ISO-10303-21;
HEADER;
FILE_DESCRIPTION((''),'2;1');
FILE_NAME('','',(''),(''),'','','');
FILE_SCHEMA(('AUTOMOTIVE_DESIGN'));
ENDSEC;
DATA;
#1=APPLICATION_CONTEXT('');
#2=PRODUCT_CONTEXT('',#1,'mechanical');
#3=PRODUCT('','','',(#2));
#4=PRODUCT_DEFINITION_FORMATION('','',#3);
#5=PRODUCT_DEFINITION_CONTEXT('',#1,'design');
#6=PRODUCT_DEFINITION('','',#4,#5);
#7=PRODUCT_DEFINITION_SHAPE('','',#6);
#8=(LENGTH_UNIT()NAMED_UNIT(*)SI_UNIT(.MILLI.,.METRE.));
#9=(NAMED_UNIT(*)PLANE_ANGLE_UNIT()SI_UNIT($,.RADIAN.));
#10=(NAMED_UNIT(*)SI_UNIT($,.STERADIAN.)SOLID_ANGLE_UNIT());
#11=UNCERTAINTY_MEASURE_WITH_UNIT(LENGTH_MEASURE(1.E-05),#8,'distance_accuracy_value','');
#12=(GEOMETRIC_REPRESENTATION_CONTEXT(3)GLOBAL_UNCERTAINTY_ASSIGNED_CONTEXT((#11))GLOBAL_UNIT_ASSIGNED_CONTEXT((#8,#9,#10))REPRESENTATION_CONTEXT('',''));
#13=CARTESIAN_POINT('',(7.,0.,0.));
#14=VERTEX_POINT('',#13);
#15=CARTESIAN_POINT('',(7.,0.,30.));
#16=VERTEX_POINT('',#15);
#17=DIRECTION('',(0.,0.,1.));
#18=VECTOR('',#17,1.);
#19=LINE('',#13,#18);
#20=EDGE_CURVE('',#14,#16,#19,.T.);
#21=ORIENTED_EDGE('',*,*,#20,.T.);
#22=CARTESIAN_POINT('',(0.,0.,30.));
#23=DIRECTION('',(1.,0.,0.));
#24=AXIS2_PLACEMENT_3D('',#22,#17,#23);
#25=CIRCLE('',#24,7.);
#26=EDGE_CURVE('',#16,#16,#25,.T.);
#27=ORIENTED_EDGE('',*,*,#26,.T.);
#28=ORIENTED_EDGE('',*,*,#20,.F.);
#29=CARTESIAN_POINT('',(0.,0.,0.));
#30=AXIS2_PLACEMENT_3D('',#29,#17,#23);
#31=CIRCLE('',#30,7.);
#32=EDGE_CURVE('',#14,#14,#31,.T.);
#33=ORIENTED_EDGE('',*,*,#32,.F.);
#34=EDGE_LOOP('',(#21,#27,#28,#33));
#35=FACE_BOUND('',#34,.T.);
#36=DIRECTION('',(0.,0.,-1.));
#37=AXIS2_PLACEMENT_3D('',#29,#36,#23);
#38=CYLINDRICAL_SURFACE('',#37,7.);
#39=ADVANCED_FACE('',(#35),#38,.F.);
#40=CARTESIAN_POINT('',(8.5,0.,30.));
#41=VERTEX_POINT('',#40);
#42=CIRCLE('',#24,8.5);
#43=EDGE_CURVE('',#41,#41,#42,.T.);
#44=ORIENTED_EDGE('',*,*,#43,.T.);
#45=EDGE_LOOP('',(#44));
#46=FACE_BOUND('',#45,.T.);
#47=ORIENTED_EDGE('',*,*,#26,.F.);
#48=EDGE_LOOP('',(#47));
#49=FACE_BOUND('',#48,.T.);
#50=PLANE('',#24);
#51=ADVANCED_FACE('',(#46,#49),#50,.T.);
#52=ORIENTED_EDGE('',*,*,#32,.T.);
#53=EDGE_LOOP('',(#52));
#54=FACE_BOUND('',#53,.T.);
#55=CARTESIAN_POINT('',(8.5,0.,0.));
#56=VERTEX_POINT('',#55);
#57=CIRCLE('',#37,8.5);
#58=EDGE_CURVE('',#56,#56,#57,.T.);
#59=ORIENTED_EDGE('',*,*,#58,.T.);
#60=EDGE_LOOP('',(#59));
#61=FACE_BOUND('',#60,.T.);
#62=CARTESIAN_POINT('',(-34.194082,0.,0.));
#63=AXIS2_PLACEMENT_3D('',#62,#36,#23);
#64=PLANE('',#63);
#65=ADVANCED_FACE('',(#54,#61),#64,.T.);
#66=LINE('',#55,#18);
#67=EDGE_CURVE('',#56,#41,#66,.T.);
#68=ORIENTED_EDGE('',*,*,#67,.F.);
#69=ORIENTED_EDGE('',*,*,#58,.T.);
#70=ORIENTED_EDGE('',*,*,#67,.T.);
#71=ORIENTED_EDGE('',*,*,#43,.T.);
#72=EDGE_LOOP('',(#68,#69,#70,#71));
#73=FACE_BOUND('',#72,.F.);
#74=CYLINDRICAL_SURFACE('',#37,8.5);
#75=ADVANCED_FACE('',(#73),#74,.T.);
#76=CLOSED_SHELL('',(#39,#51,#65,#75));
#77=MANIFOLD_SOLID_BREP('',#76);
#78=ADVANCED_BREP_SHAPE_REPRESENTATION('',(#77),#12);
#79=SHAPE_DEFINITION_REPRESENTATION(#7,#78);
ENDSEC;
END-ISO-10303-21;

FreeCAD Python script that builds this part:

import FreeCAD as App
import Part
import Sketcher

V = App.Vector
Q = App.Units.Quantity


def edges_at(feature, points):
    """Names of the edges that pass closest to the given points."""
    edges = feature.Shape.Edges
    near = lambda p: min(range(len(edges)), key=lambda i: edges[i].distToShape(Part.Vertex(*p))[0])
    return sorted({f"Edge{near(p) + 1}" for p in points})

doc = App.newDocument("Part")
body = doc.addObject("PartDesign::Body", "Body")

# Sketch on XY plane
sketch1 = body.newObject("Sketcher::SketchObject", "Sketch")
sketch1.AttachmentSupport = (doc.getObject("XY_Plane"), [""])
sketch1.MapMode = "FlatFace"
sketch1.addGeometry([
    Part.Circle(V(0, 0, 0), V(0, 0, 1), 8),
    Part.Circle(V(0, 0, 0), V(0, 0, 1), 7),
], False)
sketch1.addConstraint([
    Sketcher.Constraint("Coincident", 0, 3, -1, 1),
    Sketcher.Constraint("Coincident", 1, 3, -1, 1),
    Sketcher.Constraint("Diameter", 0, Q("17 mm")),
    Sketcher.Constraint("Diameter", 1, Q("14 mm")),
])
pad1 = body.newObject("PartDesign::Pad", "Pad")
pad1.Profile = sketch1
pad1.Length = 30

# Sketch on XY plane
sketch2 = body.newObject("Sketcher::SketchObject", "Sketch001")
sketch2.AttachmentSupport = (doc.getObject("XY_Plane"), [""])
sketch2.MapMode = "FlatFace"
sketch2.addGeometry(Part.Circle(V(0, 0, 0), V(0, 0, 1), 20), False)
sketch2.addConstraint([
    Sketcher.Constraint("Coincident", 0, 3, -1, 1),
    Sketcher.Constraint("Diameter", 0, Q("40 mm")),
])
pad2 = body.newObject("PartDesign::Pad", "Pad001")
pad2.Profile = sketch2
pad2.Length = 34
pad2.Reversed = True

# Sketch on XY plane
sketch3 = body.newObject("Sketcher::SketchObject", "Sketch002")
sketch3.AttachmentSupport = (doc.getObject("XY_Plane"), [""])
sketch3.MapMode = "FlatFace"
sketch3.AttachmentOffset = App.Placement(V(0, 0, -34), App.Rotation())
sketch3.addGeometry(Part.Circle(V(0, 0, 0), V(0, 0, 1), 7), False)
sketch3.addConstraint([
    Sketcher.Constraint("Coincident", 0, 3, -1, 1),
    Sketcher.Constraint("Diameter", 0, Q("14 mm")),
])
doc.recompute()
hole = body.newObject("PartDesign::Hole", "Hole")
hole.Profile = sketch3
hole.ThreadType = "None"
hole.Diameter = 14
hole.DepthType = "ThroughAll"
hole.HoleCutType = "Countersink"
hole.HoleCutDiameter = 40
hole.HoleCutCountersinkAngle = 47
hole.Reversed = True
doc.recompute()

chamfer = body.newObject("PartDesign::Chamfer", "Chamfer")
chamfer.Base = (hole, edges_at(hole, [(-20, 0, 0)]))
chamfer.ChamferType = "Two distances"
chamfer.Size = 30
chamfer.Size2 = 10.919107
chamfer.FlipDirection = True
doc.recompute()

chamfer2 = body.newObject("PartDesign::Chamfer", "Chamfer001")
chamfer2.Base = (chamfer, edges_at(chamfer, [(-9.081, 0, 0)]))
chamfer2.ChamferType = "Two distances"
chamfer2.Size = 0.714074
chamfer2.Size2 = 0.5
chamfer2.FlipDirection = True

# Sketch on XZ plane
sketch4 = body.newObject("Sketcher::SketchObject", "Sketch003")
sketch4.AttachmentSupport = (doc.getObject("XZ_Plane"), [""])
sketch4.MapMode = "FlatFace"
sketch4.addGeometry([
    Part.LineSegment(V(-34, 0, 0), V(-34, -45, 0)),
    Part.LineSegment(V(-34, -45, 0), V(54, -45, 0)),
    Part.LineSegment(V(54, -45, 0), V(54, 0, 0)),
    Part.LineSegment(V(54, 0, 0), V(-34, 0, 0)),
], False)
sketch4.addConstraint([
    Sketcher.Constraint("Coincident", 0, 2, 1, 1),
    Sketcher.Constraint("Coincident", 1, 2, 2, 1),
    Sketcher.Constraint("Coincident", 2, 2, 3, 1),
    Sketcher.Constraint("Coincident", 3, 2, 0, 1),
    Sketcher.Constraint("Vertical", 0),
    Sketcher.Constraint("Horizontal", 1),
    Sketcher.Constraint("Vertical", 2),
    Sketcher.Constraint("Horizontal", 3),
    Sketcher.Constraint("PointOnObject", 2, 2, -1),
    Sketcher.Constraint("DistanceX", 1, 1, 1, 2, Q("87.927636 mm")),
    Sketcher.Constraint("DistanceY", 0, 2, 0, 1, Q("44.851974 mm")),
    Sketcher.Constraint("DistanceX", 0, 2, -1, 1, Q("34.194082 mm")),
])
pocket1 = body.newObject("PartDesign::Pocket", "Pocket")
pocket1.Profile = sketch4
pocket1.Type = "ThroughAll"

# Sketch on XZ plane
sketch5 = body.newObject("Sketcher::SketchObject", "Sketch004")
sketch5.AttachmentSupport = (doc.getObject("XZ_Plane"), [""])
sketch5.MapMode = "FlatFace"
sketch5.addGeometry([
    Part.LineSegment(V(-34, 0, 0), V(-34, -45, 0)),
    Part.LineSegment(V(-34, -45, 0), V(54, -45, 0)),
    Part.LineSegment(V(54, -45, 0), V(54, 0, 0)),
    Part.LineSegment(V(54, 0, 0), V(-34, 0, 0)),
], False)
sketch5.addConstraint([
    Sketcher.Constraint("Coincident", 0, 2, 1, 1),
    Sketcher.Constraint("Coincident", 1, 2, 2, 1),
    Sketcher.Constraint("Coincident", 2, 2, 3, 1),
    Sketcher.Constraint("Coincident", 3, 2, 0, 1),
    Sketcher.Constraint("Vertical", 0),
    Sketcher.Constraint("Horizontal", 1),
    Sketcher.Constraint("Vertical", 2),
    Sketcher.Constraint("Horizontal", 3),
    Sketcher.Constraint("PointOnObject", 2, 2, -1),
    Sketcher.Constraint("DistanceX", 1, 1, 1, 2, Q("87.927636 mm")),
    Sketcher.Constraint("DistanceY", 0, 2, 0, 1, Q("44.851974 mm")),
    Sketcher.Constraint("DistanceX", 0, 2, -1, 1, Q("34.194082 mm")),
])
pocket2 = body.newObject("PartDesign::Pocket", "Pocket001")
pocket2.Profile = sketch5
pocket2.Type = "ThroughAll"
pocket2.Reversed = True

doc.recompute()
